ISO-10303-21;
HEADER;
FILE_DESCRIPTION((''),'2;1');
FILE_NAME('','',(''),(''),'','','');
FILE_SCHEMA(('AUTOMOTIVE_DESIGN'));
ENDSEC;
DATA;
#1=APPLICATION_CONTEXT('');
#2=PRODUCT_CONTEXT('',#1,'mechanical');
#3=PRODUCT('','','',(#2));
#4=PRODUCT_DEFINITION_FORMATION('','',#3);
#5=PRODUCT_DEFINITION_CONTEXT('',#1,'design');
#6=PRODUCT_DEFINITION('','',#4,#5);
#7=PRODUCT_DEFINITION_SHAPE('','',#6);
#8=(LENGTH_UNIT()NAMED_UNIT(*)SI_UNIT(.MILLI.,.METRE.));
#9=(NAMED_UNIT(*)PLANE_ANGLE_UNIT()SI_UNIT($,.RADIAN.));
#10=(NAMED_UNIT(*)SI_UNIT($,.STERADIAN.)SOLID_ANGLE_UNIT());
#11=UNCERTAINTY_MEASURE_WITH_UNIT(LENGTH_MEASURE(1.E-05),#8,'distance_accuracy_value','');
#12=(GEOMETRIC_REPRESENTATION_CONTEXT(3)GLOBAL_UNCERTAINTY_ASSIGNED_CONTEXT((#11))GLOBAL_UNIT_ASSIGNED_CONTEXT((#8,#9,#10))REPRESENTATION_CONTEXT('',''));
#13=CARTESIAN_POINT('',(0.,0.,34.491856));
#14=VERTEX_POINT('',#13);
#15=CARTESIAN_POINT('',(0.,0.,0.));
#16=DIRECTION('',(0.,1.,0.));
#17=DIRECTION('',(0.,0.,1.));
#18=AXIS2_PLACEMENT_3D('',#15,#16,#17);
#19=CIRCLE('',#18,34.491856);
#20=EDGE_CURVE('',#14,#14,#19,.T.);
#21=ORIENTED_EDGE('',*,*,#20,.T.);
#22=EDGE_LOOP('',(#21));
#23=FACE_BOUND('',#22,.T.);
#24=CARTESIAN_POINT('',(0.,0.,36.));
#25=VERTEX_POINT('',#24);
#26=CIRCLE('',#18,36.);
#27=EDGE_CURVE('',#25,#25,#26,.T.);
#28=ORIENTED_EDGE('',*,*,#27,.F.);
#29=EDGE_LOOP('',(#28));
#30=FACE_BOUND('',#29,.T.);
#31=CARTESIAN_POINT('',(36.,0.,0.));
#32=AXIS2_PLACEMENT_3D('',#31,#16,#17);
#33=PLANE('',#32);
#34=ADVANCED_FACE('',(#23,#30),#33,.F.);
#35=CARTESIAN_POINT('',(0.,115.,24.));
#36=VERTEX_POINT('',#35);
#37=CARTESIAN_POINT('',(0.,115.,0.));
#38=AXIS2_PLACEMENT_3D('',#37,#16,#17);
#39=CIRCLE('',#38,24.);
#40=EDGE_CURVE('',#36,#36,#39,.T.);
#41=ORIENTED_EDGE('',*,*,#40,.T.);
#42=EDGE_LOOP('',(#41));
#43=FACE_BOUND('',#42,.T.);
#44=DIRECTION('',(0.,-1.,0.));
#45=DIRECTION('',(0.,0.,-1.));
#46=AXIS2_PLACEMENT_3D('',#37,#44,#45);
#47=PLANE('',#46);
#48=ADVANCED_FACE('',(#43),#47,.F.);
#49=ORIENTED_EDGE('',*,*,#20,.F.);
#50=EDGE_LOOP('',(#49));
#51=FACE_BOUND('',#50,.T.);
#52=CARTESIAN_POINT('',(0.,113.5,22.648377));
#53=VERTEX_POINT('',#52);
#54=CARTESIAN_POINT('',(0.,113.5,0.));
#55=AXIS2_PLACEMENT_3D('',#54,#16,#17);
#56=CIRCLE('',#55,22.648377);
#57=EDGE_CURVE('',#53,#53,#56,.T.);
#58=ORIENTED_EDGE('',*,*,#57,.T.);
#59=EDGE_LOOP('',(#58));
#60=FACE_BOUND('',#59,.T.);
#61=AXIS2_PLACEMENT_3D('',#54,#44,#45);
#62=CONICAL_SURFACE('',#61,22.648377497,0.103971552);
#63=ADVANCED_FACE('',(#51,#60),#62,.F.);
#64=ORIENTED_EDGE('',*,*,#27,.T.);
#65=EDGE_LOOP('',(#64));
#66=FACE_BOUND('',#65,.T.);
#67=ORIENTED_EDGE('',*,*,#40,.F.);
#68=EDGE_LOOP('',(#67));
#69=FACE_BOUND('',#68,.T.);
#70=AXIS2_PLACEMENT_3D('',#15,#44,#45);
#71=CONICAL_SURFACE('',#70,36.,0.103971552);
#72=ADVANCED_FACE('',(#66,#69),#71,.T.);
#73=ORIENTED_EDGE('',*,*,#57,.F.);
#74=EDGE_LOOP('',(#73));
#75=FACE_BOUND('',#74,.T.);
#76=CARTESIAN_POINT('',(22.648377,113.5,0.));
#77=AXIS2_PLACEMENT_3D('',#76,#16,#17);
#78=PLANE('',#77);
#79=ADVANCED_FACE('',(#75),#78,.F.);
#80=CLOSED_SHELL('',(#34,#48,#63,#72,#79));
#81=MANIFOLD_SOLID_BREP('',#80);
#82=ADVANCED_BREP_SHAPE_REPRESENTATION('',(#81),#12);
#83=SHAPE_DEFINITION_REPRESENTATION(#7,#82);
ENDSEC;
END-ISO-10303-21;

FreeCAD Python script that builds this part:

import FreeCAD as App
import Part
import Sketcher

V = App.Vector
Q = App.Units.Quantity

doc = App.newDocument("Part")
body = doc.addObject("PartDesign::Body", "Body")

# Sketch on XY plane
sketch1 = body.newObject("Sketcher::SketchObject", "Sketch")
sketch1.AttachmentSupport = (doc.getObject("XY_Plane"), [""])
sketch1.MapMode = "FlatFace"
sketch1.addGeometry([
    Part.LineSegment(V(24, 115, 0), V(0, 115, 0)),  # 0
    Part.LineSegment(V(0, 115, 0), V(0, 113.5, 0)),  # 1
    Part.LineSegment(V(0, 113.5, 0), V(22.6, 113.5, 0)),  # 2
    Part.LineSegment(V(22.6, 113.5, 0), V(34.5, 0, 0)),  # 3
    Part.LineSegment(V(34.5, 0, 0), V(36, 0, 0)),  # 4
    Part.LineSegment(V(36, 0, 0), V(24, 115, 0)),  # 5
], False)
sketch1.addConstraint([
    Sketcher.Constraint("Coincident", 0, 2, 1, 1),
    Sketcher.Constraint("Coincident", 1, 2, 2, 1),
    Sketcher.Constraint("Coincident", 2, 2, 3, 1),
    Sketcher.Constraint("Coincident", 3, 2, 4, 1),
    Sketcher.Constraint("Coincident", 4, 2, 5, 1),
    Sketcher.Constraint("Coincident", 5, 2, 0, 1),
    Sketcher.Constraint("Horizontal", 0),
    Sketcher.Constraint("Vertical", 1),
    Sketcher.Constraint("Horizontal", 2),
    Sketcher.Constraint("Horizontal", 4),
    Sketcher.Constraint("PointOnObject", 0, 2, -2),
    Sketcher.Constraint("PointOnObject", 3, 2, -1),
    Sketcher.Constraint("Parallel", 3, 5),
    Sketcher.Constraint("DistanceX", 0, 2, 0, 1, Q("24 mm")),
    Sketcher.Constraint("DistanceY", 1, 2, 1, 1, Q("1.5 mm")),
    Sketcher.Constraint("DistanceY", -1, 1, 0, 2, Q("115 mm")),
    Sketcher.Constraint("DistanceX", -1, 1, 4, 2, Q("36 mm")),
    Sketcher.Constraint("DistanceX", 2, 1, 2, 2, Q("22.648377 mm")),
])
revolution = body.newObject("PartDesign::Revolution", "Revolution")
revolution.Profile = sketch1
revolution.ReferenceAxis = (sketch1, ["V_Axis"])
revolution.Angle = 360

doc.recompute()
